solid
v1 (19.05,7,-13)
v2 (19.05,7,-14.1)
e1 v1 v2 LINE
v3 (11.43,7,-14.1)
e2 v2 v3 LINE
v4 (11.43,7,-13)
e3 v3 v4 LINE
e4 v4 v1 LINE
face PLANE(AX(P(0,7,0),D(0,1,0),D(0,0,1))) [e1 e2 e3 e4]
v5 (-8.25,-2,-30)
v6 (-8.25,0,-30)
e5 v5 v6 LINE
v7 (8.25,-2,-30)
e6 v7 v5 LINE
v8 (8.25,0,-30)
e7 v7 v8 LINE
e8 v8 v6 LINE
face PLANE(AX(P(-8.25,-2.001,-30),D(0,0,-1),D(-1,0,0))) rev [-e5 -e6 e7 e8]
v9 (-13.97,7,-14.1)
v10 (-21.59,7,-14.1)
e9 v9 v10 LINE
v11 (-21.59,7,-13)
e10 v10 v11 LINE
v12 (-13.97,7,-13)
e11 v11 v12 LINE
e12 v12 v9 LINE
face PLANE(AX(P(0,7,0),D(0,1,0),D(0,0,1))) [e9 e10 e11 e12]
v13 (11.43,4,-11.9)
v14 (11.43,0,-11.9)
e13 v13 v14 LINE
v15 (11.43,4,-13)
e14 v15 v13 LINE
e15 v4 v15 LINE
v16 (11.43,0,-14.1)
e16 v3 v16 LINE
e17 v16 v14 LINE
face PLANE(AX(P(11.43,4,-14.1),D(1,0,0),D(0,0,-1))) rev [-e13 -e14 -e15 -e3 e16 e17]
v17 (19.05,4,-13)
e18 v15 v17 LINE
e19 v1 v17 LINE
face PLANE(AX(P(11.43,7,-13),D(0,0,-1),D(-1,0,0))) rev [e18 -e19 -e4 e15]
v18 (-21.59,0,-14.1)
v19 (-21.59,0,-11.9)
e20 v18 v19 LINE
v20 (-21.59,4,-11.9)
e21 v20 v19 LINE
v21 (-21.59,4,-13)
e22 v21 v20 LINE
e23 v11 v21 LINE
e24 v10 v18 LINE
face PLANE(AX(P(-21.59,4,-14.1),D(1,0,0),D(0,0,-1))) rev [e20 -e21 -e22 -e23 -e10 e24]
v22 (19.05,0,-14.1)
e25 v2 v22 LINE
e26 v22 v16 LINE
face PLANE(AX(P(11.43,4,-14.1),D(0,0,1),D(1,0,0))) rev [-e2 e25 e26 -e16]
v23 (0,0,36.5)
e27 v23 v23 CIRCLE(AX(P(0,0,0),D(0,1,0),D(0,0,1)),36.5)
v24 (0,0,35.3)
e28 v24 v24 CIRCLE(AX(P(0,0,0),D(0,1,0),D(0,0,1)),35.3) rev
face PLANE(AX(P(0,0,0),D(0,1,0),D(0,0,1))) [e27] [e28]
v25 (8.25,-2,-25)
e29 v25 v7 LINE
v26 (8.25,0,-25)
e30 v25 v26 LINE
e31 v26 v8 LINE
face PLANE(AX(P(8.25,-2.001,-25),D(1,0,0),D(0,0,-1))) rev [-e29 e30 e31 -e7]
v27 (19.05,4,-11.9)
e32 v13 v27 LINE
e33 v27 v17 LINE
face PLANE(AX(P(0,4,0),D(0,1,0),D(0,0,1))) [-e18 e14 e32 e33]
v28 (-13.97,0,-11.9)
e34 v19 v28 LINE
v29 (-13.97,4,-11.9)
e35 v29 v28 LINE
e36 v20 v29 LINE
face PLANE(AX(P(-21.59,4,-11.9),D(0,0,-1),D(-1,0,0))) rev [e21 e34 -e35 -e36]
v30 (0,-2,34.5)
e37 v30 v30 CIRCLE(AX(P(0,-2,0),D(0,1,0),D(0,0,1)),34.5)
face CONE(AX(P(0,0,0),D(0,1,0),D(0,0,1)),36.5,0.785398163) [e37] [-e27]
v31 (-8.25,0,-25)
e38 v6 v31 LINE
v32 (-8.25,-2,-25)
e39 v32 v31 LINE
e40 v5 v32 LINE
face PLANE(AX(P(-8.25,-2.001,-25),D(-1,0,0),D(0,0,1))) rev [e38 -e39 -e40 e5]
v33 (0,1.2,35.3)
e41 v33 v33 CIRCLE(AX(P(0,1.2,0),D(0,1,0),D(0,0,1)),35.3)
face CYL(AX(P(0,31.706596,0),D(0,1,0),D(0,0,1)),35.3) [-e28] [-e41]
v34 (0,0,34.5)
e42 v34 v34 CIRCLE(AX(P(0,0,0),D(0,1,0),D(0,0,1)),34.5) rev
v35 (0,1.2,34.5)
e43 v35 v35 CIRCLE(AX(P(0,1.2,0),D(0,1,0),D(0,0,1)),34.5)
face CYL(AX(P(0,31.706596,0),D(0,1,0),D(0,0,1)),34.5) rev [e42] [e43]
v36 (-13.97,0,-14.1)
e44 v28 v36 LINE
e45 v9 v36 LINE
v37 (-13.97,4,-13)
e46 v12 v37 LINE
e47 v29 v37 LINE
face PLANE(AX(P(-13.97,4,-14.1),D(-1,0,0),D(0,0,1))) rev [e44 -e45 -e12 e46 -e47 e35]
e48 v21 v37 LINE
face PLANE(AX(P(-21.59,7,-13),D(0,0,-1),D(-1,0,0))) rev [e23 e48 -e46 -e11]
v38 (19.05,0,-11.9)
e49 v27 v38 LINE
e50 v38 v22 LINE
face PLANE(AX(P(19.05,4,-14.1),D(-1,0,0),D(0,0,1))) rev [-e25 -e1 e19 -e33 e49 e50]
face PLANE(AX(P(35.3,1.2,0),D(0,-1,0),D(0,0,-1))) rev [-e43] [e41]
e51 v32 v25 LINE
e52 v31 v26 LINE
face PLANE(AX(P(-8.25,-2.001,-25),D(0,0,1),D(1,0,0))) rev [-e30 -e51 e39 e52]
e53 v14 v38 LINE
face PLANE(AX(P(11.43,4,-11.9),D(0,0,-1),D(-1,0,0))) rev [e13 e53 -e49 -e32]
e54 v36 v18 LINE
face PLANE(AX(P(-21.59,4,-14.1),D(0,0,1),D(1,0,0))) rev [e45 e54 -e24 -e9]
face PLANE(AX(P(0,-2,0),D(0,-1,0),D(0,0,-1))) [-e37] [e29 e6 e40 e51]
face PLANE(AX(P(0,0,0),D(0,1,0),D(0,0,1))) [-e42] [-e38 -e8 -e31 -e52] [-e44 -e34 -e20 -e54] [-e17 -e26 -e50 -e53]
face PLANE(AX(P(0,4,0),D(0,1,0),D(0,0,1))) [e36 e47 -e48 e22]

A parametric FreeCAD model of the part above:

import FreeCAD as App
import Part
import Sketcher

V = App.Vector
Q = App.Units.Quantity

doc = App.newDocument("Part")
body = doc.addObject("PartDesign::Body", "Body")

# Sketch on XY plane
sketch1 = doc.addObject("Sketcher::SketchObject", "Sketch")
body.addObject(sketch1)
sketch1.AttachmentSupport = (doc.XY_Plane, [""])
sketch1.MapMode = "FlatFace"
sketch1.addGeometry([
    Part.LineSegment(V(0, 0, 0), V(0, -2, 0)),  # 0
    Part.LineSegment(V(0, -2, 0), V(34.5, -2, 0)),  # 1
    Part.LineSegment(V(34.5, -2, 0), V(36.5, 0, 0)),  # 2
    Part.LineSegment(V(36.5, 0, 0), V(35.3, 0, 0)),  # 3
    Part.LineSegment(V(35.3, 0, 0), V(35.3, 1.2, 0)),  # 4
    Part.LineSegment(V(35.3, 1.2, 0), V(34.5, 1.2, 0)),  # 5
    Part.LineSegment(V(34.5, 1.2, 0), V(34.5, 0, 0)),  # 6
    Part.LineSegment(V(34.5, 0, 0), V(0, 0, 0)),  # 7
], False)
sketch1.addConstraint([
    Sketcher.Constraint("Coincident", 0, 2, 1, 1),
    Sketcher.Constraint("Coincident", 1, 2, 2, 1),
    Sketcher.Constraint("Coincident", 2, 2, 3, 1),
    Sketcher.Constraint("Coincident", 3, 2, 4, 1),
    Sketcher.Constraint("Coincident", 4, 2, 5, 1),
    Sketcher.Constraint("Coincident", 5, 2, 6, 1),
    Sketcher.Constraint("Coincident", 6, 2, 7, 1),
    Sketcher.Constraint("Coincident", 7, 2, 0, 1),
    Sketcher.Constraint("Vertical", 0),
    Sketcher.Constraint("Horizontal", 1),
    Sketcher.Constraint("Horizontal", 3),
    Sketcher.Constraint("Vertical", 4),
    Sketcher.Constraint("Horizontal", 5),
    Sketcher.Constraint("Vertical", 6),
    Sketcher.Constraint("Horizontal", 7),
    Sketcher.Constraint("Coincident", 7, 2, -1, 1),
    Sketcher.Constraint("PointOnObject", 2, 2, -1),
    Sketcher.Constraint("Vertical", 1, 2, 5, 2),
    Sketcher.Constraint("Equal", 3, 4),
    Sketcher.Constraint("DistanceY", 0, 2, 0, 1, 2.0),
    Sketcher.Constraint("Angle", 2, Q("45 deg")),
    Sketcher.Constraint("DistanceX", 1, 1, 1, 2, 34.5),
    Sketcher.Constraint("DistanceX", 3, 2, 3, 1, 1.2),
])
revolution = doc.addObject("PartDesign::Revolution", "Revolution")
body.addObject(revolution)
revolution.Profile = sketch1
revolution.ReferenceAxis = (sketch1, ["V_Axis"])
revolution.Angle = 360

# Sketch on XZ plane
sketch2 = doc.addObject("Sketcher::SketchObject", "Sketch001")
body.addObject(sketch2)
sketch2.AttachmentSupport = (doc.XZ_Plane, [""])
sketch2.MapMode = "FlatFace"
sketch2.addGeometry([
    Part.LineSegment(V(-8, -30, 0), V(-8, -25, 0)),
    Part.LineSegment(V(-8, -25, 0), V(8, -25, 0)),
    Part.LineSegment(V(8, -25, 0), V(8, -30, 0)),
    Part.LineSegment(V(8, -30, 0), V(-8, -30, 0)),
], False)
sketch2.addConstraint([
    Sketcher.Constraint("Coincident", 0, 2, 1, 1),
    Sketcher.Constraint("Coincident", 1, 2, 2, 1),
    Sketcher.Constraint("Coincident", 2, 2, 3, 1),
    Sketcher.Constraint("Coincident", 3, 2, 0, 1),
    Sketcher.Constraint("Vertical", 0),
    Sketcher.Constraint("Horizontal", 1),
    Sketcher.Constraint("Vertical", 2),
    Sketcher.Constraint("Horizontal", 3),
    Sketcher.Constraint("DistanceY", 0, 1, 0, 2, 5.0),
    Sketcher.Constraint("DistanceX", 1, 1, 1, 2, 16.5),
    Sketcher.Constraint("DistanceY", 0, 2, -1, 1, 25.0),
    Sketcher.Constraint("DistanceX", 0, 2, -1, 1, 8.25),
])
pocket1 = doc.addObject("PartDesign::Pocket", "Pocket")
body.addObject(pocket1)
pocket1.Profile = sketch2
pocket1.Type = "UpToFirst"
pocket1.Reversed = True

# Sketch on XZ plane
sketch3 = doc.addObject("Sketcher::SketchObject", "Sketch002")
body.addObject(sketch3)
sketch3.AttachmentSupport = (doc.XZ_Plane, [""])
sketch3.MapMode = "FlatFace"
sketch3.addGeometry([
    Part.LineSegment(V(-21.6, -14.1, 0), V(-21.6, -11.9, 0)),  # 0
    Part.LineSegment(V(-21.6, -11.9, 0), V(-14, -11.9, 0)),  # 1
    Part.LineSegment(V(-14, -11.9, 0), V(-14, -14.1, 0)),  # 2
    Part.LineSegment(V(-14, -14.1, 0), V(-21.6, -14.1, 0)),  # 3
    Part.LineSegment(V(11.4, -14.1, 0), V(11.4, -11.9, 0)),  # 4
    Part.LineSegment(V(11.4, -11.9, 0), V(19.1, -11.9, 0)),  # 5
    Part.LineSegment(V(19.1, -11.9, 0), V(19.1, -14.1, 0)),  # 6
    Part.LineSegment(V(19.1, -14.1, 0), V(11.4, -14.1, 0)),  # 7
], False)
sketch3.addConstraint([
    Sketcher.Constraint("Coincident", 0, 2, 1, 1),
    Sketcher.Constraint("Coincident", 1, 2, 2, 1),
    Sketcher.Constraint("Coincident", 2, 2, 3, 1),
    Sketcher.Constraint("Coincident", 3, 2, 0, 1),
    Sketcher.Constraint("Coincident", 4, 2, 5, 1),
    Sketcher.Constraint("Coincident", 5, 2, 6, 1),
    Sketcher.Constraint("Coincident", 6, 2, 7, 1),
    Sketcher.Constraint("Coincident", 7, 2, 4, 1),
    Sketcher.Constraint("Vertical", 0),
    Sketcher.Constraint("Horizontal", 1),
    Sketcher.Constraint("Vertical", 2),
    Sketcher.Constraint("Horizontal", 3),
    Sketcher.Constraint("Vertical", 4),
    Sketcher.Constraint("Horizontal", 5),
    Sketcher.Constraint("Vertical", 6),
    Sketcher.Constraint("Horizontal", 7),
    Sketcher.Constraint("Horizontal", 1, 2, 4, 2),
    Sketcher.Constraint("Horizontal", 3, 2, 6, 2),
    Sketcher.Constraint("Equal", 3, 5),
    Sketcher.Constraint("DistanceY", 0, 1, 0, 2, 2.2),
    Sketcher.Constraint("DistanceX", 1, 1, 1, 2, 7.62),
    Sketcher.Constraint("DistanceY", 0, 2, -1, 1, 11.9),
    Sketcher.Constraint("DistanceX", 1, 2, 4, 2, 25.4),
    Sketcher.Constraint("DistanceX", 0, 2, -1, 1, 21.59),
])
pad1 = doc.addObject("PartDesign::Pad", "Pad")
body.addObject(pad1)
pad1.Profile = sketch3
pad1.Length = 4
pad1.Reversed = True

# Sketch on XZ plane
sketch4 = doc.addObject("Sketcher::SketchObject", "Sketch003")
body.addObject(sketch4)
sketch4.AttachmentSupport = (doc.XZ_Plane, [""])
sketch4.MapMode = "FlatFace"
sketch4.AttachmentOffset = App.Placement(V(0, 0, -4), App.Rotation())
sketch4.addGeometry([
    Part.LineSegment(V(-21.6, -14.1, 0), V(-21.6, -13, 0)),  # 0
    Part.LineSegment(V(-21.6, -13, 0), V(-14, -13, 0)),  # 1
    Part.LineSegment(V(-14, -13, 0), V(-14, -14.1, 0)),  # 2
    Part.LineSegment(V(-14, -14.1, 0), V(-21.6, -14.1, 0)),  # 3
    Part.LineSegment(V(11.4, -14.1, 0), V(11.4, -13, 0)),  # 4
    Part.LineSegment(V(11.4, -13, 0), V(19.1, -13, 0)),  # 5
    Part.LineSegment(V(19.1, -13, 0), V(19.1, -14.1, 0)),  # 6
    Part.LineSegment(V(19.1, -14.1, 0), V(11.4, -14.1, 0)),  # 7
], False)
sketch4.addConstraint([
    Sketcher.Constraint("Coincident", 0, 2, 1, 1),
    Sketcher.Constraint("Coincident", 1, 2, 2, 1),
    Sketcher.Constraint("Coincident", 2, 2, 3, 1),
    Sketcher.Constraint("Coincident", 3, 2, 0, 1),
    Sketcher.Constraint("Coincident", 4, 2, 5, 1),
    Sketcher.Constraint("Coincident", 5, 2, 6, 1),
    Sketcher.Constraint("Coincident", 6, 2, 7, 1),
    Sketcher.Constraint("Coincident", 7, 2, 4, 1),
    Sketcher.Constraint("Vertical", 0),
    Sketcher.Constraint("Horizontal", 1),
    Sketcher.Constraint("Vertical", 2),
    Sketcher.Constraint("Horizontal", 3),
    Sketcher.Constraint("Vertical", 4),
    Sketcher.Constraint("Horizontal", 5),
    Sketcher.Constraint("Vertical", 6),
    Sketcher.Constraint("Horizontal", 7),
    Sketcher.Constraint("Horizontal", 1, 2, 4, 2),
    Sketcher.Constraint("Horizontal", 3, 2, 6, 2),
    Sketcher.Constraint("Equal", 3, 5),
    Sketcher.Constraint("DistanceY", 0, 1, 0, 2, 1.1),
    Sketcher.Constraint("DistanceY", 0, 2, -1, 1, 13.0),
    Sketcher.Constraint("DistanceX", 1, 1, 1, 2, 7.62),
    Sketcher.Constraint("DistanceX", 1, 2, 4, 2, 25.4),
    Sketcher.Constraint("DistanceX", 0, 2, -1, 1, 21.59),
])
pad2 = doc.addObject("PartDesign::Pad", "Pad001")
body.addObject(pad2)
pad2.Profile = sketch4
pad2.Length = 3
pad2.Reversed = True

doc.recompute()
